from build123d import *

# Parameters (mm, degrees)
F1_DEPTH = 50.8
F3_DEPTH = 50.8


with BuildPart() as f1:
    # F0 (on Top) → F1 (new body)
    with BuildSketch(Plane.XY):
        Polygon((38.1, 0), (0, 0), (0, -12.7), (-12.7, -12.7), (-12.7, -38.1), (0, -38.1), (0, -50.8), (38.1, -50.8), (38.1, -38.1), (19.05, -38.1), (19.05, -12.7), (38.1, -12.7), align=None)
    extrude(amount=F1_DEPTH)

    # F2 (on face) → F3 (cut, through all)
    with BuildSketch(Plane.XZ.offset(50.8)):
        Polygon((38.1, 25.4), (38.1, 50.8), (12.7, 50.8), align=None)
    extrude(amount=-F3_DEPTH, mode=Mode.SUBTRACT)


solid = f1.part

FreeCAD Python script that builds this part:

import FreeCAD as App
import Part
import Sketcher
Q = App.Units.Quantity


def add_polygon(sketch, points):
    """Adds a closed chain of lines whose ends are joined by coincident constraints."""
    first, n = sketch.GeometryCount, len(points)
    for a, b in zip(points, points[1:] + points[:1]):
        sketch.addGeometry(Part.LineSegment(App.Vector(*a, 0), App.Vector(*b, 0)), False)
    for i in range(n):
        sketch.addConstraint(Sketcher.Constraint("Coincident", first + i, 2, first + (i + 1) % n, 1))

doc = App.newDocument("Part")
body = doc.addObject("PartDesign::Body", "Body")

sketch1 = body.newObject("Sketcher::SketchObject", "Sketch")
sketch1.AttachmentSupport = (doc.getObject("XY_Plane"), [""])
sketch1.MapMode = "FlatFace"
add_polygon(sketch1, [(38, 0), (0, 0), (0, -13), (-13, -13), (-13, -38), (0, -38), (0, -51), (38, -51), (38, -38), (19, -38), (19, -13), (38, -13)])
sketch1.addConstraint(Sketcher.Constraint("Horizontal", 0))
sketch1.addConstraint(Sketcher.Constraint("Vertical", 1))
sketch1.addConstraint(Sketcher.Constraint("Horizontal", 2))
sketch1.addConstraint(Sketcher.Constraint("Vertical", 3))
sketch1.addConstraint(Sketcher.Constraint("Horizontal", 4))
sketch1.addConstraint(Sketcher.Constraint("Vertical", 5))
sketch1.addConstraint(Sketcher.Constraint("Horizontal", 6))
sketch1.addConstraint(Sketcher.Constraint("Vertical", 7))
sketch1.addConstraint(Sketcher.Constraint("Horizontal", 8))
sketch1.addConstraint(Sketcher.Constraint("Vertical", 9))
sketch1.addConstraint(Sketcher.Constraint("Horizontal", 10))
sketch1.addConstraint(Sketcher.Constraint("Vertical", 11))
sketch1.addConstraint(Sketcher.Constraint("Coincident", 0, 2, -1, 1))
sketch1.addConstraint(Sketcher.Constraint("PointOnObject", 4, 2, -2))
sketch1.addConstraint(Sketcher.Constraint("Horizontal", 4, 2, 7, 2))
sketch1.addConstraint(Sketcher.Constraint("Horizontal", 2, 2, 9, 2))
sketch1.addConstraint(Sketcher.Constraint("Vertical", 7, 2, 10, 2))
sketch1.addConstraint(Sketcher.Constraint("Equal", 4, 1))
sketch1.addConstraint(Sketcher.Constraint("Equal", 1, 5))
sketch1.addConstraint(Sketcher.Constraint("DistanceY", 3, 2, 3, 1, Q("1 in")))
sketch1.addConstraint(Sketcher.Constraint("DistanceX", 0, 2, 0, 1, Q("1.5 in")))
sketch1.addConstraint(Sketcher.Constraint("DistanceX", 2, 2, 2, 1, Q("0.5 in")))
sketch1.addConstraint(Sketcher.Constraint("DistanceX", 8, 2, 8, 1, Q("0.75 in")))
pad1 = body.newObject("PartDesign::Pad", "Pad")
pad1.Profile = sketch1
pad1.Length = Q("2 in")

sketch2 = body.newObject("Sketcher::SketchObject", "Sketch001")
sketch2.AttachmentSupport = (doc.getObject("XZ_Plane"), [""])
sketch2.MapMode = "FlatFace"
sketch2.AttachmentOffset = App.Placement(App.Vector(0, 0, 2 * 25.4), App.Rotation())
add_polygon(sketch2, [(38, 25), (38, 51), (13, 51)])
sketch2.addConstraint(Sketcher.Constraint("Vertical", 0))
sketch2.addConstraint(Sketcher.Constraint("Horizontal", 1))
sketch2.addConstraint(Sketcher.Constraint("Equal", 1, 0))
sketch2.addConstraint(Sketcher.Constraint("DistanceX", 1, 2, 1, 1, Q("1 in")))
sketch2.addConstraint(Sketcher.Constraint("DistanceY", -1, 1, 0, 2, Q("2 in")))
sketch2.addConstraint(Sketcher.Constraint("DistanceX", -1, 1, 0, 2, Q("1.5 in")))
pocket1 = body.newObject("PartDesign::Pocket", "Pocket")
pocket1.Profile = sketch2
pocket1.Type = "ThroughAll"

doc.recompute()
